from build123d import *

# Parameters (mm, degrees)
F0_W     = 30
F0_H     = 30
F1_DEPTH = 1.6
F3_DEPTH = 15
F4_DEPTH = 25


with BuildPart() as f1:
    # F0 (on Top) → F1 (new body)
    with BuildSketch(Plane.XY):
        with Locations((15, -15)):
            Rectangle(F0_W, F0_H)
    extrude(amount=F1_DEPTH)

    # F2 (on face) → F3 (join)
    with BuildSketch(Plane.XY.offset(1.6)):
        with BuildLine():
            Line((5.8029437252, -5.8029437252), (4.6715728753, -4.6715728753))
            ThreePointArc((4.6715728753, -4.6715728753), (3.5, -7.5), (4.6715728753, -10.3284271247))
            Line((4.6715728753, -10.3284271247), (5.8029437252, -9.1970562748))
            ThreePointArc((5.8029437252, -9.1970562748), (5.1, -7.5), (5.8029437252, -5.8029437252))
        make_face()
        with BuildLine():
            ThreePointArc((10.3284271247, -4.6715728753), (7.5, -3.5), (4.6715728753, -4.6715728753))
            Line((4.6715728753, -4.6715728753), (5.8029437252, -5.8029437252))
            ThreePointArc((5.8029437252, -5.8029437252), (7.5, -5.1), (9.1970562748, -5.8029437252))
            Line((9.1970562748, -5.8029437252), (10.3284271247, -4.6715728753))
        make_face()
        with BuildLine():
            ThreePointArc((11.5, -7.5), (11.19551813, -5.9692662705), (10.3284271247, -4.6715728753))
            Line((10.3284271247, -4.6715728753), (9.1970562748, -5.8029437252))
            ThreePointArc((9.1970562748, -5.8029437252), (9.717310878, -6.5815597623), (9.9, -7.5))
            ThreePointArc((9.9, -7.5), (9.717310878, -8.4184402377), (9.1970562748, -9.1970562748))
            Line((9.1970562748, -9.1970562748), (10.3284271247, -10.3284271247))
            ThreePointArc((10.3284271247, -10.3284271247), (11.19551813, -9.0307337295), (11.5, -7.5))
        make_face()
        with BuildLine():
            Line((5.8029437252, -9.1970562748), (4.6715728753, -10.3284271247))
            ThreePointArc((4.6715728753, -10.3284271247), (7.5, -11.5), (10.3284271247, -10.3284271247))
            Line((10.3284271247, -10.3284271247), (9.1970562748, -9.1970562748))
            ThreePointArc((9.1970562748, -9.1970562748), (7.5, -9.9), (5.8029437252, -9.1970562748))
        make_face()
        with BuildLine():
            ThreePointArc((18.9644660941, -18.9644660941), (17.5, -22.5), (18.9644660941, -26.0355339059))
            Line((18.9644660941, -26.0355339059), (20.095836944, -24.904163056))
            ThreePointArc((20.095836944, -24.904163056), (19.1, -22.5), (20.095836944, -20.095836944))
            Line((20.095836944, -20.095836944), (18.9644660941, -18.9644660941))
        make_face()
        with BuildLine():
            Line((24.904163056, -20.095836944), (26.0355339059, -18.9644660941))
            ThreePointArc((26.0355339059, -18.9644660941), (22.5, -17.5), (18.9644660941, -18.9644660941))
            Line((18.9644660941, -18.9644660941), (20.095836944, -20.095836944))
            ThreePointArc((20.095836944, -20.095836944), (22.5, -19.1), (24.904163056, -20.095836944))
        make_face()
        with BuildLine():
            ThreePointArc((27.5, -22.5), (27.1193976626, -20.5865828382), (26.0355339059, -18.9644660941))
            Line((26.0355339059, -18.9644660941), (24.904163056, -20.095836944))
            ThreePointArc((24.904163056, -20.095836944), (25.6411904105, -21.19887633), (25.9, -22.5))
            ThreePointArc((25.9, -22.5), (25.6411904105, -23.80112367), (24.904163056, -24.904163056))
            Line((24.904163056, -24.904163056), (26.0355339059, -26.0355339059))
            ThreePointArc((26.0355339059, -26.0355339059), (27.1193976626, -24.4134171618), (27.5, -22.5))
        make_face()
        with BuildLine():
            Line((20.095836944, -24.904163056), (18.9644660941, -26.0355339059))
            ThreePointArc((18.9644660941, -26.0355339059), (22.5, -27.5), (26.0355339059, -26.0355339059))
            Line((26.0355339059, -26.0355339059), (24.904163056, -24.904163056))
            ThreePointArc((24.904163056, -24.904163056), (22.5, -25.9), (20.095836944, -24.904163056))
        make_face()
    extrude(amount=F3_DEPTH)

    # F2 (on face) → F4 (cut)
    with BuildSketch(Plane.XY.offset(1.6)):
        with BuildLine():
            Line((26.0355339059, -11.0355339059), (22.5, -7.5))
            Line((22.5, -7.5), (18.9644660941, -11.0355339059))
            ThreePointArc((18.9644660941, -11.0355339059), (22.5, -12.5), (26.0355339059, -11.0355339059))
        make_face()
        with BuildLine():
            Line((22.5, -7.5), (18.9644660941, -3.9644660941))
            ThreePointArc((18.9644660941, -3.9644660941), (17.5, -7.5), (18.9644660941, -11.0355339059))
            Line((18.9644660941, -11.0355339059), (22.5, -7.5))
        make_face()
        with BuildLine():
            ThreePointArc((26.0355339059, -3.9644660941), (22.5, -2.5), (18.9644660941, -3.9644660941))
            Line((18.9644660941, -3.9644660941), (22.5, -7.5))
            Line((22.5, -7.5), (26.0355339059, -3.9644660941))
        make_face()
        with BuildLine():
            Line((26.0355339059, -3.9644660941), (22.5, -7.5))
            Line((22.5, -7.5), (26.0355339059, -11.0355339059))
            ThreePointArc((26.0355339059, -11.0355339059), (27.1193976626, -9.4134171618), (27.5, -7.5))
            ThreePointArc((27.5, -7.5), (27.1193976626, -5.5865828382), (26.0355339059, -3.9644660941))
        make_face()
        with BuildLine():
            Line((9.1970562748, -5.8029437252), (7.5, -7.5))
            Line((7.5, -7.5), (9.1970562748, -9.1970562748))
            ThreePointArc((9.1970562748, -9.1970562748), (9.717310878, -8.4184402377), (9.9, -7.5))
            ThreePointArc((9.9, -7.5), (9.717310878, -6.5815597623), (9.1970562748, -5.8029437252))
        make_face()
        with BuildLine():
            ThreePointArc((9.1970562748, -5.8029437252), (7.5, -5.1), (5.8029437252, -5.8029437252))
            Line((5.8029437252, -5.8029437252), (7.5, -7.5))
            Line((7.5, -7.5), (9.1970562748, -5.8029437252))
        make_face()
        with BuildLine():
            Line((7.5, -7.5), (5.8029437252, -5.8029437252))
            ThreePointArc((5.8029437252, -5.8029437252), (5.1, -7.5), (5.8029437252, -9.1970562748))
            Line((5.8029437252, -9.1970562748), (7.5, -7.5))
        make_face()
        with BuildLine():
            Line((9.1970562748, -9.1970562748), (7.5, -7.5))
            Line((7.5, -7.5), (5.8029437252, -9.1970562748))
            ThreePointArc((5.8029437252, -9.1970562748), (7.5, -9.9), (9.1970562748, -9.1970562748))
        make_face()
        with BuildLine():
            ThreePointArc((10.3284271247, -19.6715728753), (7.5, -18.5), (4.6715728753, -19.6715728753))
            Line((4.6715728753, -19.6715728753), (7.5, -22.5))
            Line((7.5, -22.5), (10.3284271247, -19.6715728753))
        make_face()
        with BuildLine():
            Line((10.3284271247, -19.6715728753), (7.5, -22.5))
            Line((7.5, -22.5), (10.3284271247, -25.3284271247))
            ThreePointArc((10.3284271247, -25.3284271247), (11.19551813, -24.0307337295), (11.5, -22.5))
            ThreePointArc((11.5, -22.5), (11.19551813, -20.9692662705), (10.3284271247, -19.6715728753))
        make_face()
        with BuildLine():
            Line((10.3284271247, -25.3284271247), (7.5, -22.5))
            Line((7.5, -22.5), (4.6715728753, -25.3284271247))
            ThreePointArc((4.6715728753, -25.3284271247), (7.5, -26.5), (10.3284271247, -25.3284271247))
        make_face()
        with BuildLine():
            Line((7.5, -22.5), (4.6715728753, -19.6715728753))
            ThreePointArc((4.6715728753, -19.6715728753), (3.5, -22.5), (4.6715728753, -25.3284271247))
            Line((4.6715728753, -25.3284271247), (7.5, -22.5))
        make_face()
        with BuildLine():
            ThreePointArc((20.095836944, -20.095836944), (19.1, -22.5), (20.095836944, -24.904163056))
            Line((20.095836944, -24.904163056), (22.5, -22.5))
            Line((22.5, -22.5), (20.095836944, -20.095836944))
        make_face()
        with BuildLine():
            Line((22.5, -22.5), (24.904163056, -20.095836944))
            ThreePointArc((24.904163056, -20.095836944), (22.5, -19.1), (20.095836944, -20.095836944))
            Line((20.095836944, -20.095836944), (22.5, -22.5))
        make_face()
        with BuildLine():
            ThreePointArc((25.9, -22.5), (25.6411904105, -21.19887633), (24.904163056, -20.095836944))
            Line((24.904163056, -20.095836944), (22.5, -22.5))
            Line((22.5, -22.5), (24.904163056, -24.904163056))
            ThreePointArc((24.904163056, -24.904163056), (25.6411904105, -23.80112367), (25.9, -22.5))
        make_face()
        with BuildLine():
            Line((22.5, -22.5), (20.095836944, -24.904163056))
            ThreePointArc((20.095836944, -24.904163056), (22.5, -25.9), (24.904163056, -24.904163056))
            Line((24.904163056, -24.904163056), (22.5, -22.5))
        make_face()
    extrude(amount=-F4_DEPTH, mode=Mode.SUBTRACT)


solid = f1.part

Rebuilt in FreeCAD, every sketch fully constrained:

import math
import FreeCAD as App
import Part
import Sketcher
from FreeCAD import Vector
Q = App.Units.Quantity

doc = App.newDocument("Part")
body = doc.addObject("PartDesign::Body", "Body")

# Sketch on XY plane
sketch1 = doc.addObject("Sketcher::SketchObject", "Sketch")
body.addObject(sketch1)
sketch1.AttachmentSupport = (doc.XY_Plane, [""])
sketch1.MapMode = "FlatFace"
sketch1.addGeometry([
    Part.LineSegment(Vector(0, 0, 0), Vector(0, -30, 0)),
    Part.LineSegment(Vector(0, -30, 0), Vector(30, -30, 0)),
    Part.LineSegment(Vector(30, -30, 0), Vector(30, 0, 0)),
    Part.LineSegment(Vector(30, 0, 0), Vector(0, 0, 0)),
], False)
sketch1.addConstraint([
    Sketcher.Constraint("Coincident", 0, 2, 1, 1),
    Sketcher.Constraint("Coincident", 1, 2, 2, 1),
    Sketcher.Constraint("Coincident", 2, 2, 3, 1),
    Sketcher.Constraint("Coincident", 3, 2, 0, 1),
    Sketcher.Constraint("Vertical", 0),
    Sketcher.Constraint("Horizontal", 1),
    Sketcher.Constraint("Vertical", 2),
    Sketcher.Constraint("Horizontal", 3),
    Sketcher.Constraint("Coincident", 3, 2, -1, 1),
    Sketcher.Constraint("Equal", 3, 0),
    Sketcher.Constraint("DistanceX", 1, 1, 1, 2, Q("30 mm")),
])
pad1 = doc.addObject("PartDesign::Pad", "Pad")
body.addObject(pad1)
pad1.Profile = sketch1
pad1.Length = 1.6

# Sketch on XY plane
sketch2 = doc.addObject("Sketcher::SketchObject", "Sketch001")
body.addObject(sketch2)
sketch2.AttachmentSupport = (doc.XY_Plane, [""])
sketch2.MapMode = "FlatFace"
sketch2.AttachmentOffset = App.Placement(Vector(0, 0, 1.6), App.Rotation())
sketch2.addGeometry([
    Part.ArcOfCircle(Part.Circle(Vector(7.5, -7.5, 0), Vector(0, 0, 1), 4), math.radians(135), math.radians(225)),  # 0
    Part.ArcOfCircle(Part.Circle(Vector(7.5, -7.5, 0), Vector(0, 0, 1), 4), math.radians(-135), math.radians(-45)),  # 1
    Part.ArcOfCircle(Part.Circle(Vector(7.5, -7.5, 0), Vector(0, 0, 1), 4), math.radians(-45), math.radians(0)),  # 2
    Part.ArcOfCircle(Part.Circle(Vector(7.5, -7.5, 0), Vector(0, 0, 1), 4), math.radians(0), math.radians(45)),  # 3
    Part.ArcOfCircle(Part.Circle(Vector(7.5, -7.5, 0), Vector(0, 0, 1), 4), math.radians(45), math.radians(135)),  # 4
    Part.ArcOfCircle(Part.Circle(Vector(7.5, -7.5, 0), Vector(0, 0, 1), 2.4), math.radians(135), math.radians(225)),  # 5
    Part.ArcOfCircle(Part.Circle(Vector(7.5, -7.5, 0), Vector(0, 0, 1), 2.4), math.radians(45), math.radians(135)),  # 6
    Part.ArcOfCircle(Part.Circle(Vector(7.5, -7.5, 0), Vector(0, 0, 1), 2.4), math.radians(0), math.radians(45)),  # 7
    Part.ArcOfCircle(Part.Circle(Vector(7.5, -7.5, 0), Vector(0, 0, 1), 2.4), math.radians(-45), math.radians(0)),  # 8
    Part.ArcOfCircle(Part.Circle(Vector(7.5, -7.5, 0), Vector(0, 0, 1), 2.4), math.radians(-135), math.radians(-45)),  # 9
    Part.ArcOfCircle(Part.Circle(Vector(22.5, -22.5, 0), Vector(0, 0, 1), 5), math.radians(135), math.radians(225)),  # 10
    Part.ArcOfCircle(Part.Circle(Vector(22.5, -22.5, 0), Vector(0, 0, 1), 5), math.radians(-135), math.radians(-45)),  # 11
    Part.ArcOfCircle(Part.Circle(Vector(22.5, -22.5, 0), Vector(0, 0, 1), 5), math.radians(-45), math.radians(0)),  # 12
    Part.ArcOfCircle(Part.Circle(Vector(22.5, -22.5, 0), Vector(0, 0, 1), 5), math.radians(0), math.radians(45)),  # 13
    Part.ArcOfCircle(Part.Circle(Vector(22.5, -22.5, 0), Vector(0, 0, 1), 5), math.radians(45), math.radians(135)),  # 14
    Part.ArcOfCircle(Part.Circle(Vector(22.5, -22.5, 0), Vector(0, 0, 1), 3.4), math.radians(135), math.radians(225)),  # 15
    Part.ArcOfCircle(Part.Circle(Vector(22.5, -22.5, 0), Vector(0, 0, 1), 3.4), math.radians(45), math.radians(135)),  # 16
    Part.ArcOfCircle(Part.Circle(Vector(22.5, -22.5, 0), Vector(0, 0, 1), 3.4), math.radians(0), math.radians(45)),  # 17
    Part.ArcOfCircle(Part.Circle(Vector(22.5, -22.5, 0), Vector(0, 0, 1), 3.4), math.radians(-45), math.radians(0)),  # 18
    Part.ArcOfCircle(Part.Circle(Vector(22.5, -22.5, 0), Vector(0, 0, 1), 3.4), math.radians(-135), math.radians(-45)),  # 19
], False)
sketch2.addConstraint([
    Sketcher.Constraint("Tangent", 0, 2, 1, 1),
    Sketcher.Constraint("Tangent", 1, 2, 2, 1),
    Sketcher.Constraint("Tangent", 2, 2, 3, 1),
    Sketcher.Constraint("Tangent", 3, 2, 4, 1),
    Sketcher.Constraint("Tangent", 4, 2, 0, 1),
    Sketcher.Constraint("Tangent", 5, 1, 6, 2),
    Sketcher.Constraint("Tangent", 6, 1, 7, 2),
    Sketcher.Constraint("Tangent", 7, 1, 8, 2),
    Sketcher.Constraint("Tangent", 8, 1, 9, 2),
    Sketcher.Constraint("Tangent", 9, 1, 5, 2),
    Sketcher.Constraint("Tangent", 10, 2, 11, 1),
    Sketcher.Constraint("Tangent", 11, 2, 12, 1),
    Sketcher.Constraint("Tangent", 12, 2, 13, 1),
    Sketcher.Constraint("Tangent", 13, 2, 14, 1),
    Sketcher.Constraint("Tangent", 14, 2, 10, 1),
    Sketcher.Constraint("Tangent", 15, 1, 16, 2),
    Sketcher.Constraint("Tangent", 16, 1, 17, 2),
    Sketcher.Constraint("Tangent", 17, 1, 18, 2),
    Sketcher.Constraint("Tangent", 18, 1, 19, 2),
    Sketcher.Constraint("Tangent", 19, 1, 15, 2),
    Sketcher.Constraint("Coincident", 2, 3, 0, 3),
    Sketcher.Constraint("Coincident", 5, 3, 0, 3),
    Sketcher.Constraint("Coincident", 7, 3, 0, 3),
    Sketcher.Constraint("Coincident", 12, 3, 10, 3),
    Sketcher.Constraint("Coincident", 15, 3, 10, 3),
    Sketcher.Constraint("Coincident", 17, 3, 10, 3),
    Sketcher.Constraint("Horizontal", 0, 2, 1, 2),
    Sketcher.Constraint("Horizontal", 9, 3, 2, 2),
    Sketcher.Constraint("Horizontal", 3, 2, 4, 2),
    Sketcher.Constraint("Horizontal", 5, 1, 6, 1),
    Sketcher.Constraint("Horizontal", 2, 2, 7, 1),
    Sketcher.Constraint("Horizontal", 8, 1, 9, 1),
    Sketcher.Constraint("Horizontal", 10, 2, 11, 2),
    Sketcher.Constraint("Horizontal", 19, 3, 12, 2),
    Sketcher.Constraint("Horizontal", 13, 2, 14, 2),
    Sketcher.Constraint("Horizontal", 15, 1, 16, 1),
    Sketcher.Constraint("Horizontal", 12, 2, 17, 1),
    Sketcher.Constraint("Horizontal", 18, 1, 19, 1),
    Sketcher.Constraint("Vertical", 1, 2, 3, 2),
    Sketcher.Constraint("Vertical", 6, 1, 8, 1),
    Sketcher.Constraint("Vertical", 11, 2, 13, 2),
    Sketcher.Constraint("Vertical", 16, 1, 18, 1),
    Sketcher.Constraint("Radius", 0, Q("4 mm")),
    Sketcher.Constraint("Radius", 10, Q("5 mm")),
    Sketcher.Constraint("Radius", 5, Q("2.4 mm")),
    Sketcher.Constraint("Radius", 15, Q("3.4 mm")),
    Sketcher.Constraint("DistanceX", 0, 3, 10, 3, Q("15 mm")),
    Sketcher.Constraint("DistanceY", 10, 3, 0, 3, Q("15 mm")),
    Sketcher.Constraint("DistanceX", -1, 1, 0, 3, Q("7.5 mm")),
    Sketcher.Constraint("DistanceY", 0, 3, -1, 1, Q("7.5 mm")),
    Sketcher.Constraint("DistanceX", 4, 2, 5, 1, Q("1.131371 mm")),
    Sketcher.Constraint("DistanceX", 14, 2, 15, 1, Q("1.131371 mm")),
    Sketcher.Constraint("DistanceX", -1, 1, 0, 2, Q("4.671573 mm")),
    Sketcher.Constraint("DistanceX", -1, 1, 10, 2, Q("18.964466 mm")),
])
pad2 = doc.addObject("PartDesign::Pad", "Pad001")
body.addObject(pad2)
pad2.Profile = sketch2
pad2.Length = 15

# Sketch on XY plane
sketch3 = doc.addObject("Sketcher::SketchObject", "Sketch002")
body.addObject(sketch3)
sketch3.AttachmentSupport = (doc.XY_Plane, [""])
sketch3.MapMode = "FlatFace"
sketch3.AttachmentOffset = App.Placement(Vector(0, 0, 1.6), App.Rotation())
sketch3.addGeometry([
    Part.ArcOfCircle(Part.Circle(Vector(22.5, -7.5, 0), Vector(0, 0, 1), 5), math.radians(45), math.radians(135)),  # 0
    Part.ArcOfCircle(Part.Circle(Vector(22.5, -7.5, 0), Vector(0, 0, 1), 5), math.radians(135), math.radians(225)),  # 1
    Part.ArcOfCircle(Part.Circle(Vector(22.5, -7.5, 0), Vector(0, 0, 1), 5), math.radians(-135), math.radians(-45)),  # 2
    Part.ArcOfCircle(Part.Circle(Vector(22.5, -7.5, 0), Vector(0, 0, 1), 5), math.radians(-45), math.radians(0)),  # 3
    Part.ArcOfCircle(Part.Circle(Vector(22.5, -7.5, 0), Vector(0, 0, 1), 5), math.radians(0), math.radians(45)),  # 4
    Part.ArcOfCircle(Part.Circle(Vector(7.5, -7.5, 0), Vector(0, 0, 1), 2.4), math.radians(-45), math.radians(0)),  # 5
    Part.ArcOfCircle(Part.Circle(Vector(7.5, -7.5, 0), Vector(0, 0, 1), 2.4), math.radians(0), math.radians(45)),  # 6
    Part.ArcOfCircle(Part.Circle(Vector(7.5, -7.5, 0), Vector(0, 0, 1), 2.4), math.radians(45), math.radians(135)),  # 7
    Part.ArcOfCircle(Part.Circle(Vector(7.5, -7.5, 0), Vector(0, 0, 1), 2.4), math.radians(135), math.radians(225)),  # 8
    Part.ArcOfCircle(Part.Circle(Vector(7.5, -7.5, 0), Vector(0, 0, 1), 2.4), math.radians(-135), math.radians(-45)),  # 9
    Part.ArcOfCircle(Part.Circle(Vector(7.5, -22.5, 0), Vector(0, 0, 1), 4), math.radians(45), math.radians(135)),  # 10
    Part.ArcOfCircle(Part.Circle(Vector(7.5, -22.5, 0), Vector(0, 0, 1), 4), math.radians(135), math.radians(225)),  # 11
    Part.ArcOfCircle(Part.Circle(Vector(7.5, -22.5, 0), Vector(0, 0, 1), 4), math.radians(-135), math.radians(-45)),  # 12
    Part.ArcOfCircle(Part.Circle(Vector(7.5, -22.5, 0), Vector(0, 0, 1), 4), math.radians(-45), math.radians(0)),  # 13
    Part.ArcOfCircle(Part.Circle(Vector(7.5, -22.5, 0), Vector(0, 0, 1), 4), math.radians(0), math.radians(45)),  # 14
    Part.ArcOfCircle(Part.Circle(Vector(22.5, -22.5, 0), Vector(0, 0, 1), 3.4), math.radians(135), math.radians(225)),  # 15
    Part.ArcOfCircle(Part.Circle(Vector(22.5, -22.5, 0), Vector(0, 0, 1), 3.4), math.radians(-135), math.radians(-45)),  # 16
    Part.ArcOfCircle(Part.Circle(Vector(22.5, -22.5, 0), Vector(0, 0, 1), 3.4), math.radians(-45), math.radians(0)),  # 17
    Part.ArcOfCircle(Part.Circle(Vector(22.5, -22.5, 0), Vector(0, 0, 1), 3.4), math.radians(0), math.radians(45)),  # 18
    Part.ArcOfCircle(Part.Circle(Vector(22.5, -22.5, 0), Vector(0, 0, 1), 3.4), math.radians(45), math.radians(135)),  # 19
], False)
sketch3.addConstraint([
    Sketcher.Constraint("Tangent", 0, 2, 1, 1),
    Sketcher.Constraint("Tangent", 1, 2, 2, 1),
    Sketcher.Constraint("Tangent", 2, 2, 3, 1),
    Sketcher.Constraint("Tangent", 3, 2, 4, 1),
    Sketcher.Constraint("Tangent", 4, 2, 0, 1),
    Sketcher.Constraint("Tangent", 5, 2, 6, 1),
    Sketcher.Constraint("Tangent", 6, 2, 7, 1),
    Sketcher.Constraint("Tangent", 7, 2, 8, 1),
    Sketcher.Constraint("Tangent", 8, 2, 9, 1),
    Sketcher.Constraint("Tangent", 9, 2, 5, 1),
    Sketcher.Constraint("Tangent", 10, 2, 11, 1),
    Sketcher.Constraint("Tangent", 11, 2, 12, 1),
    Sketcher.Constraint("Tangent", 12, 2, 13, 1),
    Sketcher.Constraint("Tangent", 13, 2, 14, 1),
    Sketcher.Constraint("Tangent", 14, 2, 10, 1),
    Sketcher.Constraint("Tangent", 15, 2, 16, 1),
    Sketcher.Constraint("Tangent", 16, 2, 17, 1),
    Sketcher.Constraint("Tangent", 17, 2, 18, 1),
    Sketcher.Constraint("Tangent", 18, 2, 19, 1),
    Sketcher.Constraint("Tangent", 19, 2, 15, 1),
    Sketcher.Constraint("Coincident", 2, 3, 0, 3),
    Sketcher.Constraint("Coincident", 7, 3, 5, 3),
    Sketcher.Constraint("Coincident", 12, 3, 10, 3),
    Sketcher.Constraint("Coincident", 17, 3, 15, 3),
    Sketcher.Constraint("Horizontal", 4, 3, 5, 3),
    Sketcher.Constraint("Horizontal", 14, 3, 15, 3),
    Sketcher.Constraint("Horizontal", 1, 2, 2, 2),
    Sketcher.Constraint("Horizontal", 9, 3, 3, 2),
    Sketcher.Constraint("Horizontal", 0, 2, 4, 2),
    Sketcher.Constraint("Horizontal", 3, 2, 5, 2),
    Sketcher.Constraint("Horizontal", 6, 2, 7, 2),
    Sketcher.Constraint("Horizontal", 8, 2, 9, 2),
    Sketcher.Constraint("Horizontal", 11, 2, 12, 2),
    Sketcher.Constraint("Horizontal", 19, 3, 13, 2),
    Sketcher.Constraint("Horizontal", 10, 2, 14, 2),
    Sketcher.Constraint("Horizontal", 15, 2, 16, 2),
    Sketcher.Constraint("Horizontal", 13, 2, 17, 2),
    Sketcher.Constraint("Horizontal", 18, 2, 19, 2),
    Sketcher.Constraint("Vertical", 9, 3, 10, 3),
    Sketcher.Constraint("Vertical", 4, 3, 15, 3),
    Sketcher.Constraint("Vertical", 0, 2, 1, 2),
    Sketcher.Constraint("Vertical", 7, 2, 8, 2),
    Sketcher.Constraint("Vertical", 10, 2, 11, 2),
    Sketcher.Constraint("Vertical", 16, 2, 18, 2),
    Sketcher.Constraint("Radius", 0, Q("5 mm")),
    Sketcher.Constraint("Radius", 10, Q("4 mm")),
    Sketcher.Constraint("Radius", 5, Q("2.4 mm")),
    Sketcher.Constraint("Radius", 15, Q("3.4 mm")),
    Sketcher.Constraint("DistanceX", 5, 3, 0, 3, Q("15 mm")),
    Sketcher.Constraint("DistanceY", 10, 3, 5, 3, Q("15 mm")),
    Sketcher.Constraint("DistanceX", -1, 1, 0, 3, Q("22.5 mm")),
    Sketcher.Constraint("DistanceY", 0, 3, -1, 1, Q("7.5 mm")),
    Sketcher.Constraint("DistanceX", -1, 1, 0, 2, Q("18.964466 mm")),
    Sketcher.Constraint("DistanceX", -1, 1, 6, 2, Q("9.197056 mm")),
    Sketcher.Constraint("DistanceX", -1, 1, 10, 2, Q("4.671573 mm")),
    Sketcher.Constraint("DistanceX", -1, 1, 15, 2, Q("20.095837 mm")),
])
pocket1 = doc.addObject("PartDesign::Pocket", "Pocket")
body.addObject(pocket1)
pocket1.Profile = sketch3
pocket1.Length = 25

doc.recompute()
